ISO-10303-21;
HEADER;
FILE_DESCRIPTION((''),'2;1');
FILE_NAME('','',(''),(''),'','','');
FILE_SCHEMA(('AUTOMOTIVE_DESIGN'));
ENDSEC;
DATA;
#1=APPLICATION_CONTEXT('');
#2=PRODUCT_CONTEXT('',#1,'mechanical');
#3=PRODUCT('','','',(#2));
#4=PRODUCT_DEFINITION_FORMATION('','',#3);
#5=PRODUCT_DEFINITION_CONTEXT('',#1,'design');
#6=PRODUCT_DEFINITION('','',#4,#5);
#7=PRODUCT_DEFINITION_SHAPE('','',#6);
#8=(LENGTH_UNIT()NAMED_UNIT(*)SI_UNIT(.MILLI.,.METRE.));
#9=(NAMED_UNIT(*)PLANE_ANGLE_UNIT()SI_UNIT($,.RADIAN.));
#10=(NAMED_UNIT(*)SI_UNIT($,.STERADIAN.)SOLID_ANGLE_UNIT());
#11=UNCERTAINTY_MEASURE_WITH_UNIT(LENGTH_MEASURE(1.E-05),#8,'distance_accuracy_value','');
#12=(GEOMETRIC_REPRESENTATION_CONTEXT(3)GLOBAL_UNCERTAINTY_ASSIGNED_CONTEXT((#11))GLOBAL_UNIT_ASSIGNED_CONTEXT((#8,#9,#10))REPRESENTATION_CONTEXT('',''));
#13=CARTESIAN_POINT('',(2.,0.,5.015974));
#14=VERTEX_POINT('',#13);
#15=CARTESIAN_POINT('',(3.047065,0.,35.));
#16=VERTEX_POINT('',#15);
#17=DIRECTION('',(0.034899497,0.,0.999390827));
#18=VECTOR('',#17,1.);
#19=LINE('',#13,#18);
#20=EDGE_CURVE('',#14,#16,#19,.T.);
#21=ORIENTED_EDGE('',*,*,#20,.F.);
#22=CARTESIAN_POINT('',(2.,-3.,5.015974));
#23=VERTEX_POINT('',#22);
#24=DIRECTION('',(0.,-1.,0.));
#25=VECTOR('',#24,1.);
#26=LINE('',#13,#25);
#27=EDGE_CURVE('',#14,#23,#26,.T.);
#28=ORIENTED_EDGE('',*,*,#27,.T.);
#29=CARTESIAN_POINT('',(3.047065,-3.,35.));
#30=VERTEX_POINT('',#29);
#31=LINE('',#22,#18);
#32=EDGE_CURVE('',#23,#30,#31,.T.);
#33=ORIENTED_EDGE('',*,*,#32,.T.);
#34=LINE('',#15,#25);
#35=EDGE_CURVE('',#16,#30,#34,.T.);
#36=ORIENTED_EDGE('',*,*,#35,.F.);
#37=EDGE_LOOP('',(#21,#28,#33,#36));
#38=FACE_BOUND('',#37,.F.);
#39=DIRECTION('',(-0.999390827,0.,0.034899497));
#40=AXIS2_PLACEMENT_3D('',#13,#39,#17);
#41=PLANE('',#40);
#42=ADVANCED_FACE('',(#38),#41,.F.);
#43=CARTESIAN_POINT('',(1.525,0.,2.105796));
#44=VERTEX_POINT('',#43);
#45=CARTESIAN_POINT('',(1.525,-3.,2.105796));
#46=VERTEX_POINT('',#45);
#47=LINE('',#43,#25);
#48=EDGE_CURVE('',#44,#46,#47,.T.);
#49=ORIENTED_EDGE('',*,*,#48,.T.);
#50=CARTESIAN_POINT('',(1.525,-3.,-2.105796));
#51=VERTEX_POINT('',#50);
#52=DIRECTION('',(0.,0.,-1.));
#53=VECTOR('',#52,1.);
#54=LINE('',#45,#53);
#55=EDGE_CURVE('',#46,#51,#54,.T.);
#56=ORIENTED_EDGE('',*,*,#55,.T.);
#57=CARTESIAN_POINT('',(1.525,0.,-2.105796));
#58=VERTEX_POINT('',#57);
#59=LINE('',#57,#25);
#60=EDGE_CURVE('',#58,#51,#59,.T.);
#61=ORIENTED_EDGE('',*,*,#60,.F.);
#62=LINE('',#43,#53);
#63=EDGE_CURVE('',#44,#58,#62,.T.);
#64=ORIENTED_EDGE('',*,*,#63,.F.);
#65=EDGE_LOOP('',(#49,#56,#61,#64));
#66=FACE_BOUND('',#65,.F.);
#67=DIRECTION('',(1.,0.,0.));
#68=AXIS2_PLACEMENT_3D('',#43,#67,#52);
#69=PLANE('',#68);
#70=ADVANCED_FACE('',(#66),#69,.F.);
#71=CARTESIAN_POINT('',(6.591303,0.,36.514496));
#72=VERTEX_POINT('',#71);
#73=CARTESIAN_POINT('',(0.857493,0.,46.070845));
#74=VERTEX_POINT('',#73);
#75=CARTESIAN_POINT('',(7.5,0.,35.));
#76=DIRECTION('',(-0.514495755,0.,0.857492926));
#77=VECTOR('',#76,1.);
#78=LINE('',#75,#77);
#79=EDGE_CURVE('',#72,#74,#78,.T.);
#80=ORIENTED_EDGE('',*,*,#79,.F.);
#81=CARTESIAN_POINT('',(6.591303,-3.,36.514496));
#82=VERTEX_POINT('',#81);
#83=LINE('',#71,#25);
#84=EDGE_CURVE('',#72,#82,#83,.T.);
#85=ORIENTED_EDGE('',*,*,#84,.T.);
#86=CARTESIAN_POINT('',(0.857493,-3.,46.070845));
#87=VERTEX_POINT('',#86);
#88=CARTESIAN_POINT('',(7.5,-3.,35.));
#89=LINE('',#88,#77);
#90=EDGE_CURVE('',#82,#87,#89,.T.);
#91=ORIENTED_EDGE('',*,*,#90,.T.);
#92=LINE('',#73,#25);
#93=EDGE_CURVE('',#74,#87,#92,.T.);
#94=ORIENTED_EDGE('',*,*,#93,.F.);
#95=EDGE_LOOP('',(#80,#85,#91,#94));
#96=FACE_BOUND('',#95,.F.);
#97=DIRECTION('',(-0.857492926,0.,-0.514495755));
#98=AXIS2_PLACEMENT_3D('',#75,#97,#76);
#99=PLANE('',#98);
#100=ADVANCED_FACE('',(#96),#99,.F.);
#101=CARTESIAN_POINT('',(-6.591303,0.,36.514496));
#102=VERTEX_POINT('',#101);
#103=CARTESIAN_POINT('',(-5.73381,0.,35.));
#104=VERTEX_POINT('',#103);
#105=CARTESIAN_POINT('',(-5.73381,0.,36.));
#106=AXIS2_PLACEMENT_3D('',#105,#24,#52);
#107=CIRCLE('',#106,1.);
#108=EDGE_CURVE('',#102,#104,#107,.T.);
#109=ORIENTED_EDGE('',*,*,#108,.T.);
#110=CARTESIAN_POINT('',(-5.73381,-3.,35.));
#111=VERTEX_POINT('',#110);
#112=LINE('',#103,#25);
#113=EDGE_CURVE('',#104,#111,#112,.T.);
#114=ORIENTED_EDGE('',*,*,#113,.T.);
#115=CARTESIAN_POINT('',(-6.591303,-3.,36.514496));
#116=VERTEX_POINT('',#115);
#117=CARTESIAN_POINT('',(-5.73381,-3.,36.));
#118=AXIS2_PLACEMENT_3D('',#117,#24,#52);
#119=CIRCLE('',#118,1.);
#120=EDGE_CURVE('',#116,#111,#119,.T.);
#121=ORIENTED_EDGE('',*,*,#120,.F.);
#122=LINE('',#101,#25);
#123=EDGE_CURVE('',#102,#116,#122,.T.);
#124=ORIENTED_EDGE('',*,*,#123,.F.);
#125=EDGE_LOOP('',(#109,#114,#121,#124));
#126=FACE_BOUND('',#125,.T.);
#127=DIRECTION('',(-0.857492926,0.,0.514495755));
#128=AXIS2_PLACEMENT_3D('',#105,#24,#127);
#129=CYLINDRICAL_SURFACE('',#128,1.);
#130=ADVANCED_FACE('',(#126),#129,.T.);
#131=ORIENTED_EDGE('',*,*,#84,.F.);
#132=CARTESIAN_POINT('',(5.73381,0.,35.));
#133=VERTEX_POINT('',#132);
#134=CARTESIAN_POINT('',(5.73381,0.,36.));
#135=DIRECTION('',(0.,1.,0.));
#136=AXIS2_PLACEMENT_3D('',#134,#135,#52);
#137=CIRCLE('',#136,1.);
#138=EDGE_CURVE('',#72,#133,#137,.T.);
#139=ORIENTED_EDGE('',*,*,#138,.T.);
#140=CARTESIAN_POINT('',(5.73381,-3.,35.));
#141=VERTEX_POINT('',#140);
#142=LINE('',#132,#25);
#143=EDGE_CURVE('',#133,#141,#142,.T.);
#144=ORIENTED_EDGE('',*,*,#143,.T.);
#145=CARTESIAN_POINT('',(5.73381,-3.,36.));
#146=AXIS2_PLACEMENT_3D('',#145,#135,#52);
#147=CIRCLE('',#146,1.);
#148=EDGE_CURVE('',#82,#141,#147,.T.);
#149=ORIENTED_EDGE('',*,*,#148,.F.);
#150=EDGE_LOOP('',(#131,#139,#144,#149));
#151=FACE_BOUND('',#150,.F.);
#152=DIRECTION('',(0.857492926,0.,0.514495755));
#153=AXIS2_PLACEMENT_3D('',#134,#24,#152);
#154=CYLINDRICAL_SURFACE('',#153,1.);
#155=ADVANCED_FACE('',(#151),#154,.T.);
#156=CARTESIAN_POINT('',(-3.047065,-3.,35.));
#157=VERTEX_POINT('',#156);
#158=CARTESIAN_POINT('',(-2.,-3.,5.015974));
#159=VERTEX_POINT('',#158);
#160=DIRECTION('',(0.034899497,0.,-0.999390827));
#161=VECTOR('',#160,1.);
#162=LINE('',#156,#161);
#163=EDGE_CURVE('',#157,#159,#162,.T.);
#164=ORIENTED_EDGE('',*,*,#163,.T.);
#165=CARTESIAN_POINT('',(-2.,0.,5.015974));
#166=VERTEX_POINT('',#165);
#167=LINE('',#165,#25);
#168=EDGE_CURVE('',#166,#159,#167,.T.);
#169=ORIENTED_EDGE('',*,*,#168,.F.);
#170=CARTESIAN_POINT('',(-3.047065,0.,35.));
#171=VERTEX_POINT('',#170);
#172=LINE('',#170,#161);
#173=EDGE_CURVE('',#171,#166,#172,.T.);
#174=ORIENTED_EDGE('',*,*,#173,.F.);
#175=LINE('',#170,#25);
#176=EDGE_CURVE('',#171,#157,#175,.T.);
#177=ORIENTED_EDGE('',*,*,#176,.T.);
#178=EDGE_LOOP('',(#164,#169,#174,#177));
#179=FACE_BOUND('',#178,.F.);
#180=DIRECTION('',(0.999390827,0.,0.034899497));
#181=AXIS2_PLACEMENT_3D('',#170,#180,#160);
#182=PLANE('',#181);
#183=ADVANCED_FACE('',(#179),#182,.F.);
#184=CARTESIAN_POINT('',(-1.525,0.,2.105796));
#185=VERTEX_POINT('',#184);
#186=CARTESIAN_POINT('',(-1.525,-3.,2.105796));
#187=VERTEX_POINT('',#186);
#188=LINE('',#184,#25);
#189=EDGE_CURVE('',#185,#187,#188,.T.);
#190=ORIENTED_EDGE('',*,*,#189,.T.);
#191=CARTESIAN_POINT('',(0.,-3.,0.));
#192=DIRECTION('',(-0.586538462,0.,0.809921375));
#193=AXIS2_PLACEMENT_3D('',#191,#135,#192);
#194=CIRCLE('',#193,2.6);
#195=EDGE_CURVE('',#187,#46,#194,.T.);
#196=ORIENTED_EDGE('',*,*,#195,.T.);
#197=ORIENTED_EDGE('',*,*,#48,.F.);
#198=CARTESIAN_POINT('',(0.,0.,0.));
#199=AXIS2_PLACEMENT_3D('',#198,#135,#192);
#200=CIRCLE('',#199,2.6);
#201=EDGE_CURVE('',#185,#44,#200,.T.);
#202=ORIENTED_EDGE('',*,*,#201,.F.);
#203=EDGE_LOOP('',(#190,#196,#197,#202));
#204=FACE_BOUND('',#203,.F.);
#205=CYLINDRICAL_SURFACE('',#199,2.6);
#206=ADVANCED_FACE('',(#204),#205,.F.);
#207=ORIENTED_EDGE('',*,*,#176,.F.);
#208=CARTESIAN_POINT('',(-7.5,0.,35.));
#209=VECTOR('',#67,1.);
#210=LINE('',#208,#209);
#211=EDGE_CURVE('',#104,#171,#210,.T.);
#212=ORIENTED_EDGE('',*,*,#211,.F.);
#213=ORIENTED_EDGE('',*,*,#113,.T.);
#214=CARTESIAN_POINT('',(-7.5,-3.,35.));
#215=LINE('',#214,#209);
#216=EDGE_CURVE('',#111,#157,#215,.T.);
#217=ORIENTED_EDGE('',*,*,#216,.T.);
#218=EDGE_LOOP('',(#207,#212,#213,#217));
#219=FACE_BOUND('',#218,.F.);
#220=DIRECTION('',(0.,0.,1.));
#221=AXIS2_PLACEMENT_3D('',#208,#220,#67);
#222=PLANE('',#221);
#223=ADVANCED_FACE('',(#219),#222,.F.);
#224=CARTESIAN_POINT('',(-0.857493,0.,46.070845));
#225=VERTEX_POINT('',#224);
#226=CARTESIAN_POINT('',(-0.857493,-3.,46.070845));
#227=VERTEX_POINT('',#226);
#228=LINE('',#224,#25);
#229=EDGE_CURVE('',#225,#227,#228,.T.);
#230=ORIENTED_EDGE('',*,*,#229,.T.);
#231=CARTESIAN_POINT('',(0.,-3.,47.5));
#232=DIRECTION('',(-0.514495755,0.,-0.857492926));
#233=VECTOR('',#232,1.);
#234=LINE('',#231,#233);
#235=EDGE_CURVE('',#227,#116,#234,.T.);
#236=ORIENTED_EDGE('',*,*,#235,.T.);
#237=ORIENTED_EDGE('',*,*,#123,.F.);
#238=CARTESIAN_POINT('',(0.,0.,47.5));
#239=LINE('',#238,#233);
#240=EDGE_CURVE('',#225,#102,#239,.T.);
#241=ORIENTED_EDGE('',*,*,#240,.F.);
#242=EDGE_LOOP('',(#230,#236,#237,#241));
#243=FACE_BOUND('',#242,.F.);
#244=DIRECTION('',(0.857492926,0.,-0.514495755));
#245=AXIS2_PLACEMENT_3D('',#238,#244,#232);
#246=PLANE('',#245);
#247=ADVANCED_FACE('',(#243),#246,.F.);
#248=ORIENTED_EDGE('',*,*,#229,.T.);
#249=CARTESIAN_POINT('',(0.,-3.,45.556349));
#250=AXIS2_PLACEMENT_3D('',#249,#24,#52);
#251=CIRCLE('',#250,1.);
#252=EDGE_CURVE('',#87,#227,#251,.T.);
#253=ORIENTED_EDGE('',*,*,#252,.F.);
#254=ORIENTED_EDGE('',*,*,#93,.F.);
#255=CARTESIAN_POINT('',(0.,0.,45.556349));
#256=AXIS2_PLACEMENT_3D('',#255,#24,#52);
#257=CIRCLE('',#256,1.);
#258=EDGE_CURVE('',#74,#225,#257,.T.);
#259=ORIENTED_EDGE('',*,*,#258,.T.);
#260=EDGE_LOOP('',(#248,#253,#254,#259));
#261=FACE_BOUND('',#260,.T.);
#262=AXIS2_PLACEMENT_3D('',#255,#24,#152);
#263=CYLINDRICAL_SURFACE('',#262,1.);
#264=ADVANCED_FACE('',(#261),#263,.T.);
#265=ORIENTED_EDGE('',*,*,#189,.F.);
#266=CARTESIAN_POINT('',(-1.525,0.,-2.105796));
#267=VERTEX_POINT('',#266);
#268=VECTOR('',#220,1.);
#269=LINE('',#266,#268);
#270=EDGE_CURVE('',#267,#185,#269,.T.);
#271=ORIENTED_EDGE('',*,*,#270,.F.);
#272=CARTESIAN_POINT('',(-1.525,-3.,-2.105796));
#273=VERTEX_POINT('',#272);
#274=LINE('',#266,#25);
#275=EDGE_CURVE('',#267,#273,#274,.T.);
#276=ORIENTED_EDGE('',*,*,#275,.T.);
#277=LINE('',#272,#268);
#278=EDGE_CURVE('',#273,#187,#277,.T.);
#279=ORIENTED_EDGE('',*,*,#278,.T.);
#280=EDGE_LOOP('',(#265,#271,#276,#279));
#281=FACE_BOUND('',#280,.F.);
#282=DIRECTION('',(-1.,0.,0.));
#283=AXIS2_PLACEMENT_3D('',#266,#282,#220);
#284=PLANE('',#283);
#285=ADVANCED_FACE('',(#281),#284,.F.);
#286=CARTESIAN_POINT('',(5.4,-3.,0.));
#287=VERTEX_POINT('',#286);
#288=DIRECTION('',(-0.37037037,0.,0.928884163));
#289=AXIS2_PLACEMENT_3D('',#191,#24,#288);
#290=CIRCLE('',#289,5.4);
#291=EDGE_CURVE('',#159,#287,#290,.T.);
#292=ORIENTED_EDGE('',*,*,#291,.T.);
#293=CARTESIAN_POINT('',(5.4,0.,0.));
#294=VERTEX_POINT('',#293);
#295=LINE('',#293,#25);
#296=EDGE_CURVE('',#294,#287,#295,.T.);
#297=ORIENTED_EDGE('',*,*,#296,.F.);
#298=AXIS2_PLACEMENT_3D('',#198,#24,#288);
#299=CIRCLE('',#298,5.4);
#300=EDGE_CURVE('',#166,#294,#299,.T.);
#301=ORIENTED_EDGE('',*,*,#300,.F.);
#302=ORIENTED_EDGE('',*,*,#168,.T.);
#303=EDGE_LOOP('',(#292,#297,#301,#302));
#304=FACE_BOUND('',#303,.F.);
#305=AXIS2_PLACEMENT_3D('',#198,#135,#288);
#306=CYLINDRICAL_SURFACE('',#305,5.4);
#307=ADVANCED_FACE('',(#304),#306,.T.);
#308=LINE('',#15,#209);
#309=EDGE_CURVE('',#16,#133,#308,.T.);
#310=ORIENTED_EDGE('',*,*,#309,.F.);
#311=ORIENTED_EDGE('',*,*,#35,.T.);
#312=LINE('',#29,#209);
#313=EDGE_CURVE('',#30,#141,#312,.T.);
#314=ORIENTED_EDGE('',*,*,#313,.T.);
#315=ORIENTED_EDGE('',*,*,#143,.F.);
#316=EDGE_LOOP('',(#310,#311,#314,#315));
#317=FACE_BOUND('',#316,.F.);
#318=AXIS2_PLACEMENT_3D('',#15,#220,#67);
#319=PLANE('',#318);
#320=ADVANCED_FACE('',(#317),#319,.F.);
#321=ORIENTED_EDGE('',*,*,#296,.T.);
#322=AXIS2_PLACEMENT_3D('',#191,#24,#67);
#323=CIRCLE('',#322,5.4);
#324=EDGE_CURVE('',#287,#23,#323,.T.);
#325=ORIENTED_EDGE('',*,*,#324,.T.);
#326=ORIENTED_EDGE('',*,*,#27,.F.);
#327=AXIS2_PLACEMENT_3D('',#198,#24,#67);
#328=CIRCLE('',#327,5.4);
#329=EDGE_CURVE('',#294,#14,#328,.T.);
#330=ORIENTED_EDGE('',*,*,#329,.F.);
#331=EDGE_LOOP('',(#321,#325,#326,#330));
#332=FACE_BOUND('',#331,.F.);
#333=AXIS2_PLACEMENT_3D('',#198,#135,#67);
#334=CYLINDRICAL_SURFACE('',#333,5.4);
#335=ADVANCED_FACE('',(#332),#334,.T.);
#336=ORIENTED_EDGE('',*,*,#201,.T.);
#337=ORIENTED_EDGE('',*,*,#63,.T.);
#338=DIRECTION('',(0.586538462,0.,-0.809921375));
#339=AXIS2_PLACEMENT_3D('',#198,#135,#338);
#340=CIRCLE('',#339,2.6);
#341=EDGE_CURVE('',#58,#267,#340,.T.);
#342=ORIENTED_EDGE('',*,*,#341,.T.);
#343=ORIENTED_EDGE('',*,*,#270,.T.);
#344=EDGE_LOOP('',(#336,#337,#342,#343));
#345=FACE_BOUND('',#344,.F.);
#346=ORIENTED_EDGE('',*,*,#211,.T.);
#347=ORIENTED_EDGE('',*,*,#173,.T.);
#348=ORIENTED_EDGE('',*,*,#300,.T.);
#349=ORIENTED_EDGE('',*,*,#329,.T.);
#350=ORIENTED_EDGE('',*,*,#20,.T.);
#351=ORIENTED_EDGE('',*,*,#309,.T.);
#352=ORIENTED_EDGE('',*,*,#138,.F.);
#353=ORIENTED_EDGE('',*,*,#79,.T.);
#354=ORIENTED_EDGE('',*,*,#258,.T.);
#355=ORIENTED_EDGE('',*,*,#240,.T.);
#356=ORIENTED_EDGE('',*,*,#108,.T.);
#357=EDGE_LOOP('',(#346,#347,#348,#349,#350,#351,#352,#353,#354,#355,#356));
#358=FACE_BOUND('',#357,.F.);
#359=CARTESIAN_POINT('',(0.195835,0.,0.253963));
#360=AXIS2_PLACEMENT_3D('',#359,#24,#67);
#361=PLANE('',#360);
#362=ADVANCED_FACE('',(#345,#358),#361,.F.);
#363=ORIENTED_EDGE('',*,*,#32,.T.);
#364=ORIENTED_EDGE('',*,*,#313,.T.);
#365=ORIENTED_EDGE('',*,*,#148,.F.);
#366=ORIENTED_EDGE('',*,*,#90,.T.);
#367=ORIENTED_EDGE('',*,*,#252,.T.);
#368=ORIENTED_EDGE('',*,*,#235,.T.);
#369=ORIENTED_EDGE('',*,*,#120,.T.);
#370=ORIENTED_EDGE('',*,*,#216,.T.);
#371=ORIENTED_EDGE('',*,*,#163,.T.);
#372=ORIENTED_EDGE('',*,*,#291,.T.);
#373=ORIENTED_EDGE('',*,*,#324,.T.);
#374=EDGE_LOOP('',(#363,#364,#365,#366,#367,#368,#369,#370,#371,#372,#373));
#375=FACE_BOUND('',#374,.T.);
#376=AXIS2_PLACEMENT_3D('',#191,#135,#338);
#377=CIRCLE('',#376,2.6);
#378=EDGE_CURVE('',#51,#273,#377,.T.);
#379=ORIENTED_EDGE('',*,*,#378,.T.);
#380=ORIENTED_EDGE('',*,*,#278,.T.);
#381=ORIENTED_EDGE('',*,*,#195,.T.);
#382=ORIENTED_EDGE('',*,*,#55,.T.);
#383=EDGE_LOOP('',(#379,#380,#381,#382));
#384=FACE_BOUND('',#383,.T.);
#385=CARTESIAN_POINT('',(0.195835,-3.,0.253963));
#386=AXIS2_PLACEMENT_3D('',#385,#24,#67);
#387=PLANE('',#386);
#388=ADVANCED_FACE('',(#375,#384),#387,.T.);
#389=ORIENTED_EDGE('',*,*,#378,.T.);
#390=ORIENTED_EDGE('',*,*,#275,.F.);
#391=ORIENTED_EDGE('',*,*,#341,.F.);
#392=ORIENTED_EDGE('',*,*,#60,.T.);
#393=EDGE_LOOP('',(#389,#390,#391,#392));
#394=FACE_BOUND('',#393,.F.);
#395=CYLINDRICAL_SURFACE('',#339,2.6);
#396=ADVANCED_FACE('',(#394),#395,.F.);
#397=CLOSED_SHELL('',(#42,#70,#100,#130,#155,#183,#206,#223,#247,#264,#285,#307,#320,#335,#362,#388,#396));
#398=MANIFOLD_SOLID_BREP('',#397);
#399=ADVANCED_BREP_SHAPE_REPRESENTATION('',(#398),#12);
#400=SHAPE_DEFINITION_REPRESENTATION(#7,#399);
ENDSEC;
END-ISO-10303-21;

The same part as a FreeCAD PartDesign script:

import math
import FreeCAD as App
import Part
import Sketcher
Q = App.Units.Quantity


def edges_at(feature, points):
    """Names of the edges that pass closest to the given points."""
    edges = feature.Shape.Edges
    near = lambda p: min(range(len(edges)), key=lambda i: edges[i].distToShape(Part.Vertex(*p))[0])
    return sorted({f"Edge{near(p) + 1}" for p in points})

doc = App.newDocument("Part")
params = doc.addObject("Spreadsheet::Sheet", "Params")
for row, (alias, value) in enumerate([
    ("sketch1_radius", "5.4 mm"),
    ("sketch1_radius2", "2.6 mm"),
    ("pad1_length", "3 mm"),
    ("fillet_radius", "1 mm"),
    ("fillet2_radius", "1 mm"),
    ("fillet3_radius", "1 mm"),
], start=1):
    params.set(f"A{row}", alias)
    params.set(f"B{row}", "=" + value)
    params.setAlias(f"B{row}", alias)

body = doc.addObject("PartDesign::Body", "Body")

# Sketch on XZ plane
sketch1 = body.newObject("Sketcher::SketchObject", "Sketch")
sketch1.AttachmentSupport = (doc.getObject("XZ_Plane"), [""])
sketch1.MapMode = "FlatFace"
sketch1.addGeometry(Part.ArcOfCircle(Part.Circle(App.Vector(0, 0, 0), App.Vector(0, 0, 1), 5.4), math.radians(111.738461), math.radians(360)), False)
sketch1.addGeometry(Part.ArcOfCircle(Part.Circle(App.Vector(0, 0, 0), App.Vector(0, 0, 1), 5.4), math.radians(0), math.radians(68.261539)), False)
sketch1.addGeometry(Part.LineSegment(App.Vector(2, 5.015974, 0), App.Vector(3.047065, 35, 0)), False)
sketch1.addGeometry(Part.LineSegment(App.Vector(3.047065, 35, 0), App.Vector(7.5, 35, 0)), False)
sketch1.addGeometry(Part.LineSegment(App.Vector(7.5, 35, 0), App.Vector(0, 47.5, 0)), False)
sketch1.addGeometry(Part.LineSegment(App.Vector(0, 47.5, 0), App.Vector(-7.5, 35, 0)), False)
sketch1.addGeometry(Part.LineSegment(App.Vector(-7.5, 35, 0), App.Vector(-3.047065, 35, 0)), False)
sketch1.addGeometry(Part.LineSegment(App.Vector(-3.047065, 35, 0), App.Vector(-2, 5.015974, 0)), False)
sketch1.addGeometry(Part.ArcOfCircle(Part.Circle(App.Vector(0, 0, 0), App.Vector(0, 0, 1), 2.6), math.radians(54.08825), math.radians(125.91175)), False)
sketch1.addGeometry(Part.LineSegment(App.Vector(1.525, 2.105796, 0), App.Vector(1.525, -2.105796, 0)), False)
sketch1.addGeometry(Part.ArcOfCircle(Part.Circle(App.Vector(0, 0, 0), App.Vector(0, 0, 1), 2.6), math.radians(-125.91175), math.radians(-54.08825)), False)
sketch1.addGeometry(Part.LineSegment(App.Vector(-1.525, -2.105796, 0), App.Vector(-1.525, 2.105796, 0)), False)
sketch1.addConstraint(Sketcher.Constraint("Tangent", 0, 2, 1, 1))
sketch1.addConstraint(Sketcher.Constraint("Coincident", 1, 2, 2, 1))
sketch1.addConstraint(Sketcher.Constraint("Coincident", 2, 2, 3, 1))
sketch1.addConstraint(Sketcher.Constraint("Coincident", 3, 2, 4, 1))
sketch1.addConstraint(Sketcher.Constraint("Coincident", 4, 2, 5, 1))
sketch1.addConstraint(Sketcher.Constraint("Coincident", 5, 2, 6, 1))
sketch1.addConstraint(Sketcher.Constraint("Coincident", 6, 2, 7, 1))
sketch1.addConstraint(Sketcher.Constraint("Coincident", 7, 2, 0, 1))
sketch1.addConstraint(Sketcher.Constraint("Coincident", 8, 1, 9, 1))
sketch1.addConstraint(Sketcher.Constraint("Coincident", 9, 2, 10, 2))
sketch1.addConstraint(Sketcher.Constraint("Coincident", 10, 1, 11, 1))
sketch1.addConstraint(Sketcher.Constraint("Coincident", 11, 2, 8, 2))
sketch1.addConstraint(Sketcher.Constraint("Horizontal", 3))
sketch1.addConstraint(Sketcher.Constraint("Horizontal", 6))
sketch1.addConstraint(Sketcher.Constraint("Vertical", 9))
sketch1.addConstraint(Sketcher.Constraint("Vertical", 11))
sketch1.addConstraint(Sketcher.Constraint("Coincident", 0, 3, -1, 1))
sketch1.addConstraint(Sketcher.Constraint("Coincident", 8, 3, -1, 1))
sketch1.addConstraint(Sketcher.Constraint("Coincident", 10, 3, -1, 1))
sketch1.addConstraint(Sketcher.Constraint("Equal", 0, 1))
sketch1.addConstraint(Sketcher.Constraint("Equal", 8, 10))
sketch1.addConstraint(Sketcher.Constraint("Symmetric", 3, 2, 5, 2, -2))
sketch1.addConstraint(Sketcher.Constraint("PointOnObject", 0, 2, -1))
sketch1.addConstraint(Sketcher.Constraint("PointOnObject", 4, 2, -2))
sketch1.addConstraint(Sketcher.Constraint("Horizontal", 1, 2, 7, 2))
sketch1.addConstraint(Sketcher.Constraint("Horizontal", 9, 2, 10, 1))
sketch1.addConstraint(Sketcher.Constraint("Equal", 3, 6))
sketch1.addConstraint(Sketcher.Constraint("Radius", 0, 5.4))
sketch1.addConstraint(Sketcher.Constraint("Radius", 8, 2.6))
sketch1.addConstraint(Sketcher.Constraint("Angle", 2, Q("88 deg")))
sketch1.addConstraint(Sketcher.Constraint("DistanceX", -1, 1, 1, 2, 2.0))
sketch1.addConstraint(Sketcher.Constraint("DistanceY", -1, 1, 2, 2, 35.0))
sketch1.addConstraint(Sketcher.Constraint("DistanceX", 5, 2, 3, 2, 15.0))
sketch1.addConstraint(Sketcher.Constraint("DistanceY", -1, 1, 4, 2, 47.5))
sketch1.addConstraint(Sketcher.Constraint("DistanceX", 10, 1, 9, 2, 3.05))
sketch1.setExpression("Constraints[27]", "Params.sketch1_radius")
sketch1.setExpression("Constraints[28]", "Params.sketch1_radius2")
pad1 = body.newObject("PartDesign::Pad", "Pad")
pad1.Profile = sketch1
pad1.setExpression("Length", "Params.pad1_length")
doc.recompute()

fillet = body.newObject("PartDesign::Fillet", "Fillet")
fillet.Base = (pad1, edges_at(pad1, [(0, -1.5, 47.5)]))
fillet.setExpression("Radius", "Params.fillet_radius")
doc.recompute()

fillet2 = body.newObject("PartDesign::Fillet", "Fillet001")
fillet2.Base = (fillet, edges_at(fillet, [(-7.5, -1.5, 35)]))
fillet2.setExpression("Radius", "Params.fillet2_radius")
doc.recompute()

fillet3 = body.newObject("PartDesign::Fillet", "Fillet002")
fillet3.Base = (fillet2, edges_at(fillet2, [(7.5, -1.5, 35)]))
fillet3.setExpression("Radius", "Params.fillet3_radius")

doc.recompute()
